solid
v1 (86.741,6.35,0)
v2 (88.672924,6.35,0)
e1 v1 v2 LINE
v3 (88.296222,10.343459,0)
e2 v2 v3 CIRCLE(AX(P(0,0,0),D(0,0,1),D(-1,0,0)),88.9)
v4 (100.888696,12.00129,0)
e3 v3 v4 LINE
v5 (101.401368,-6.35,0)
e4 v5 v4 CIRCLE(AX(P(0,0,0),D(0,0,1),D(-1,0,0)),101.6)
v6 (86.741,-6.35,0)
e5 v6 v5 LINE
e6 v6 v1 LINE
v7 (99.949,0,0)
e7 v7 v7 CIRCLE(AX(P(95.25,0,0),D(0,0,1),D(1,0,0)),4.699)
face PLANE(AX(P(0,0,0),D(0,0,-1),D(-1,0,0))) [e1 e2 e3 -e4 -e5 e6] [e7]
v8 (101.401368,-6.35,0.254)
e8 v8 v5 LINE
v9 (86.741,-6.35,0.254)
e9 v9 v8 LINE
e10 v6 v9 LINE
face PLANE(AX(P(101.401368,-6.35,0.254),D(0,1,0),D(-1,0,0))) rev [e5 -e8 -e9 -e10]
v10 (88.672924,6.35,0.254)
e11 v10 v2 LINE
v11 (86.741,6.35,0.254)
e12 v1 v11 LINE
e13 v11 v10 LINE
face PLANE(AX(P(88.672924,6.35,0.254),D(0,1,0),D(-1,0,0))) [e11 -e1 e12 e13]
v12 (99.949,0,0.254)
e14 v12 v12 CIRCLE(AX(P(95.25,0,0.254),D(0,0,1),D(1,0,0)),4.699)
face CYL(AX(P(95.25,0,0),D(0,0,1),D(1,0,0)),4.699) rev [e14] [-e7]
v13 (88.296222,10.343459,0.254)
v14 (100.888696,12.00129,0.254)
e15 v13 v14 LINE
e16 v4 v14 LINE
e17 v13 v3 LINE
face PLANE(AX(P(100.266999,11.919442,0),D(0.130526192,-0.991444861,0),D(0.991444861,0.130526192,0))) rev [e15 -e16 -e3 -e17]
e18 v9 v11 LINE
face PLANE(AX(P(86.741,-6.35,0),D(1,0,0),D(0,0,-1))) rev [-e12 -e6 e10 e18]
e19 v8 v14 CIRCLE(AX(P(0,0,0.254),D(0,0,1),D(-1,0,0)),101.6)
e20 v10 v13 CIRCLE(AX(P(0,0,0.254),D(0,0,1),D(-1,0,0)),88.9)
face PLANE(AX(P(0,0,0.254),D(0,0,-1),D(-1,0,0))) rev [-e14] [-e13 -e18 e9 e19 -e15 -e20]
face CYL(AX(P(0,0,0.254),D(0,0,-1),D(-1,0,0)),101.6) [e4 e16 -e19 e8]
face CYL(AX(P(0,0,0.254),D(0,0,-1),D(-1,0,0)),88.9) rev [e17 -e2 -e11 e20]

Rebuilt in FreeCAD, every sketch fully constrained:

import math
import FreeCAD as App
import Part
import Sketcher
from FreeCAD import Vector
Q = App.Units.Quantity


def add_polygon(sketch, points):
    """Adds a closed chain of lines whose ends are joined by coincident constraints."""
    first, n = sketch.GeometryCount, len(points)
    for a, b in zip(points, points[1:] + points[:1]):
        sketch.addGeometry(Part.LineSegment(App.Vector(*a, 0), App.Vector(*b, 0)), False)
    for i in range(n):
        sketch.addConstraint(Sketcher.Constraint("Coincident", first + i, 2, first + (i + 1) % n, 1))

doc = App.newDocument("Part")
body = doc.addObject("PartDesign::Body", "Body")

# Sketch on XY plane
sketch1 = body.newObject("Sketcher::SketchObject", "Sketch")
sketch1.AttachmentSupport = (doc.getObject("XY_Plane"), [""])
sketch1.MapMode = "FlatFace"
sketch1.addGeometry(Part.LineSegment(Vector(67.2, 76.2, 0), Vector(8.7, 17.7, 0)), False)
sketch1.addGeometry(Part.LineSegment(Vector(8.7, 17.7, 0), Vector(7.2, 14.1, 0)), False)
sketch1.addGeometry(Part.ArcOfCircle(Part.Circle(Vector(0, 0, 0), Vector(0, 0, 1), 15.9), math.radians(-18), math.radians(63)), False)
sketch1.addGeometry(Part.LineSegment(Vector(15.1, -4.9, 0), Vector(18.6, -6.3, 0)), False)
sketch1.addGeometry(Part.LineSegment(Vector(18.6, -6.3, 0), Vector(101.4, -6.3, 0)), False)
sketch1.addGeometry(Part.ArcOfCircle(Part.Circle(Vector(0, 0, 0), Vector(0, 0, 1), 101.6), math.radians(-4), math.radians(49)), False)
sketch1.addGeometry(Part.ArcOfCircle(Part.Circle(Vector(0, 0, 0), Vector(0, 0, 1), 88.9), math.radians(4), math.radians(41)), False)
sketch1.addGeometry(Part.LineSegment(Vector(88.7, 6.3, 0), Vector(27.9, 6.3, 0)), False)
sketch1.addGeometry(Part.ArcOfCircle(Part.Circle(Vector(0, 0, 0), Vector(0, 0, 1), 28.6), math.radians(12.84), math.radians(32.16)), False)
sketch1.addGeometry(Part.LineSegment(Vector(24.2, 15.2, 0), Vector(67.2, 58.2, 0)), False)
sketch1.addConstraint(Sketcher.Constraint("Coincident", 0, 2, 1, 1))
sketch1.addConstraint(Sketcher.Constraint("Coincident", 1, 2, 2, 2))
sketch1.addConstraint(Sketcher.Constraint("Coincident", 2, 1, 3, 1))
sketch1.addConstraint(Sketcher.Constraint("Coincident", 3, 2, 4, 1))
sketch1.addConstraint(Sketcher.Constraint("Coincident", 4, 2, 5, 1))
sketch1.addConstraint(Sketcher.Constraint("Coincident", 5, 2, 0, 1))
sketch1.addConstraint(Sketcher.Constraint("Coincident", 6, 1, 7, 1))
sketch1.addConstraint(Sketcher.Constraint("Coincident", 7, 2, 8, 1))
sketch1.addConstraint(Sketcher.Constraint("Coincident", 8, 2, 9, 1))
sketch1.addConstraint(Sketcher.Constraint("Coincident", 9, 2, 6, 2))
sketch1.addConstraint(Sketcher.Constraint("Horizontal", 4))
sketch1.addConstraint(Sketcher.Constraint("Horizontal", 7))
sketch1.addConstraint(Sketcher.Constraint("Coincident", 2, 3, -1, 1))
sketch1.addConstraint(Sketcher.Constraint("Coincident", 5, 3, -1, 1))
sketch1.addConstraint(Sketcher.Constraint("Coincident", 6, 3, -1, 1))
sketch1.addConstraint(Sketcher.Constraint("Coincident", 8, 3, -1, 1))
sketch1.addConstraint(Sketcher.Constraint("Perpendicular", 1, 3))
sketch1.addConstraint(Sketcher.Constraint("Parallel", 0, 9))
sketch1.addConstraint(Sketcher.Constraint("Equal", 1, 3))
sketch1.addConstraint(Sketcher.Constraint("Radius", 5, Q("4 in")))
sketch1.addConstraint(Sketcher.Constraint("Radius", 6, Q("3.5 in")))
sketch1.addConstraint(Sketcher.Constraint("Angle", 0, Q("-135 deg")))
sketch1.addConstraint(Sketcher.Constraint("Radius", 2, Q("0.625 in")))
sketch1.addConstraint(Sketcher.Constraint("Radius", 8, Q("1.125 in")))
sketch1.addConstraint(Sketcher.Constraint("Angle", 1, Q("-112.5 deg")))
sketch1.addConstraint(Sketcher.Constraint("DistanceY", 4, 2, 6, 1, Q("0.5 in")))
sketch1.addConstraint(Sketcher.Constraint("DistanceY", 3, 2, -1, 1, Q("0.25 in")))
sketch1.addConstraint(Sketcher.Constraint("DistanceY", 2, 1, -1, 1, Q("4.882301 mm")))
sketch1.addConstraint(Sketcher.Constraint("DistanceY", -1, 1, 9, 2, Q("58.211098 mm")))
sketch1.addConstraint(Sketcher.Constraint("DistanceX", 5, 2, 4, 2, Q("34.189901 mm")))
pad1 = body.newObject("PartDesign::Pad", "Pad")
pad1.Profile = sketch1
pad1.Length = Q("0.01 in")

# Sketch on XY plane
sketch2 = body.newObject("Sketcher::SketchObject", "Sketch001")
sketch2.AttachmentSupport = (doc.getObject("XY_Plane"), [""])
sketch2.MapMode = "FlatFace"
sketch2.AttachmentOffset = App.Placement(Vector(0, 0, 0.01 * 25.4), App.Rotation())
sketch2.addGeometry(Part.Circle(Vector(22.2, 0, 0), Vector(0, 0, 1), 4.7), False)
sketch2.addGeometry(Part.Circle(Vector(36.2, 0, 0), Vector(0, 0, 1), 4.7), False)
sketch2.addGeometry(Part.Circle(Vector(61.7, 0, 0), Vector(0, 0, 1), 4.7), False)
sketch2.addGeometry(Part.Circle(Vector(75.7, 0, 0), Vector(0, 0, 1), 4.7), False)
sketch2.addGeometry(Part.Circle(Vector(95.2, 0, 0), Vector(0, 0, 1), 4.7), False)
sketch2.addGeometry(Part.Circle(Vector(15.7, 15.7, 0), Vector(0, 0, 1), 4.7), False)
sketch2.addGeometry(Part.Circle(Vector(25.6, 25.6, 0), Vector(0, 0, 1), 4.7), False)
sketch2.addGeometry(Part.Circle(Vector(43.6, 43.6, 0), Vector(0, 0, 1), 4.7), False)
sketch2.addGeometry(Part.Circle(Vector(53.5, 53.5, 0), Vector(0, 0, 1), 4.7), False)
sketch2.addGeometry(Part.Circle(Vector(92, 24.7, 0), Vector(0, 0, 1), 4.7), False)
sketch2.addGeometry(Part.Circle(Vector(82.5, 47.6, 0), Vector(0, 0, 1), 4.7), False)
sketch2.addGeometry(Part.Circle(Vector(67.4, 67.4, 0), Vector(0, 0, 1), 4.7), False)
sketch2.addConstraint(Sketcher.Constraint("Equal", 0, 1))
sketch2.addConstraint(Sketcher.Constraint("Equal", 1, 2))
sketch2.addConstraint(Sketcher.Constraint("Equal", 2, 3))
sketch2.addConstraint(Sketcher.Constraint("Equal", 3, 4))
sketch2.addConstraint(Sketcher.Constraint("Equal", 4, 5))
sketch2.addConstraint(Sketcher.Constraint("Equal", 5, 6))
sketch2.addConstraint(Sketcher.Constraint("Equal", 6, 7))
sketch2.addConstraint(Sketcher.Constraint("Equal", 7, 8))
sketch2.addConstraint(Sketcher.Constraint("Equal", 8, 9))
sketch2.addConstraint(Sketcher.Constraint("Equal", 9, 10))
sketch2.addConstraint(Sketcher.Constraint("Equal", 10, 11))
sketch2.addConstraint(Sketcher.Constraint("PointOnObject", 0, 3, -1))
sketch2.addConstraint(Sketcher.Constraint("PointOnObject", 1, 3, -1))
sketch2.addConstraint(Sketcher.Constraint("PointOnObject", 2, 3, -1))
sketch2.addConstraint(Sketcher.Constraint("PointOnObject", 3, 3, -1))
sketch2.addConstraint(Sketcher.Constraint("PointOnObject", 4, 3, -1))
sketch2.addConstraint(Sketcher.Constraint("Diameter", 0, Q("0.37 in")))
sketch2.addConstraint(Sketcher.Constraint("DistanceX", -1, 1, 2, 3, Q("2.43 in")))
sketch2.addConstraint(Sketcher.Constraint("DistanceX", -1, 1, 3, 3, Q("2.98 in")))
sketch2.addConstraint(Sketcher.Constraint("DistanceX", -1, 1, 4, 3, Q("3.75 in")))
sketch2.addConstraint(Sketcher.Constraint("DistanceX", 0, 3, 1, 3, Q("0.55 in")))
sketch2.addConstraint(Sketcher.Constraint("DistanceX", -1, 1, 0, 3, Q("0.875 in")))
sketch2.addConstraint(Sketcher.Constraint("DistanceY", -1, 1, 10, 3, Q("1.875 in")))
sketch2.addConstraint(Sketcher.Constraint("DistanceX", 11, 3, 10, 3, Q("15.136999 mm")))
sketch2.addConstraint(Sketcher.Constraint("DistanceX", -1, 1, 5, 3, Q("15.715448 mm")))
sketch2.addConstraint(Sketcher.Constraint("DistanceY", -1, 1, 5, 3, Q("15.715448 mm")))
sketch2.addConstraint(Sketcher.Constraint("DistanceX", -1, 1, 6, 3, Q("25.59373 mm")))
sketch2.addConstraint(Sketcher.Constraint("DistanceY", -1, 1, 6, 3, Q("25.59373 mm")))
sketch2.addConstraint(Sketcher.Constraint("DistanceX", -1, 1, 10, 3, Q("82.48892 mm")))
sketch2.addConstraint(Sketcher.Constraint("DistanceY", -1, 1, 11, 3, Q("67.351921 mm")))
sketch2.addConstraint(Sketcher.Constraint("DistanceX", 7, 3, 8, 3, Q("9.878282 mm")))
sketch2.addConstraint(Sketcher.Constraint("DistanceY", 7, 3, 8, 3, Q("9.878282 mm")))
sketch2.addConstraint(Sketcher.Constraint("DistanceX", 5, 3, 8, 3, Q("37.806878 mm")))
sketch2.addConstraint(Sketcher.Constraint("DistanceY", 5, 3, 8, 3, Q("37.806878 mm")))
sketch2.addConstraint(Sketcher.Constraint("DistanceX", 8, 3, 9, 3, Q("38.482108 mm")))
sketch2.addConstraint(Sketcher.Constraint("DistanceY", 9, 3, 7, 3, Q("18.991531 mm")))
pocket1 = body.newObject("PartDesign::Pocket", "Pocket")
pocket1.Profile = sketch2
pocket1.Type = "ThroughAll"

# Sketch on XY plane
sketch3 = body.newObject("Sketcher::SketchObject", "Sketch002")
sketch3.AttachmentSupport = (doc.getObject("XY_Plane"), [""])
sketch3.MapMode = "FlatFace"
sketch3.AttachmentOffset = App.Placement(Vector(0, 0, 0.01 * 25.4), App.Rotation())
add_polygon(sketch3, [(17.1, 26), (15.3, 24.2), (15.7, 23.8), (17.5, 25.6)])  # lines 0-3
add_polygon(sketch3, [(45, 54), (43.2, 52.2), (43.6, 51.7), (45.4, 53.5)])  # lines 4-7
add_polygon(sketch3, [(27.9, -5.7), (27.9, -6.3), (30.5, -6.3), (30.5, -5.7)])  # lines 8-11
add_polygon(sketch3, [(67.4, -5.7), (67.4, -6.3), (70, -6.3), (70, -5.7)])  # lines 12-15
add_polygon(sketch3, [(31, 40), (29.2, 38.2), (29.7, 37.8), (31.5, 39.6)])  # lines 16-19
add_polygon(sketch3, [(56.8, 65.8), (55, 64), (55.5, 63.6), (57.3, 65.4)])  # lines 20-23
add_polygon(sketch3, [(47.7, -5.7), (47.7, -6.3), (50.2, -6.3), (50.2, -5.7)])  # lines 24-27
add_polygon(sketch3, [(84.2, -5.7), (84.2, -6.3), (86.7, -6.3), (86.7, -5.7)])  # lines 28-31
add_polygon(sketch3, [(99.9, 14.4), (100.3, 11.9), (101.5, 12.1), (101.2, 14.6)])  # lines 32-35
add_polygon(sketch3, [(93.8, 37.5), (94.9, 38), (94, 40.3), (92.8, 39.8)])  # lines 36-39
add_polygon(sketch3, [(79.3, 62.5), (80.9, 60.5), (81.9, 61.2), (80.3, 63.2)])  # lines 40-43
add_polygon(sketch3, [(13.6, 7), (14.6, 4.7), (15.7, 5.1), (14.8, 7.5)])  # lines 44-47
sketch3.addConstraint(Sketcher.Constraint("Vertical", 8))
sketch3.addConstraint(Sketcher.Constraint("Horizontal", 9))
sketch3.addConstraint(Sketcher.Constraint("Vertical", 10))
sketch3.addConstraint(Sketcher.Constraint("Horizontal", 11))
sketch3.addConstraint(Sketcher.Constraint("Vertical", 12))
sketch3.addConstraint(Sketcher.Constraint("Horizontal", 13))
sketch3.addConstraint(Sketcher.Constraint("Vertical", 14))
sketch3.addConstraint(Sketcher.Constraint("Horizontal", 15))
sketch3.addConstraint(Sketcher.Constraint("Vertical", 24))
sketch3.addConstraint(Sketcher.Constraint("Horizontal", 25))
sketch3.addConstraint(Sketcher.Constraint("Vertical", 26))
sketch3.addConstraint(Sketcher.Constraint("Horizontal", 27))
sketch3.addConstraint(Sketcher.Constraint("Vertical", 28))
sketch3.addConstraint(Sketcher.Constraint("Horizontal", 29))
sketch3.addConstraint(Sketcher.Constraint("Vertical", 30))
sketch3.addConstraint(Sketcher.Constraint("Horizontal", 31))
sketch3.addConstraint(Sketcher.Constraint("Perpendicular", 0, 1))
sketch3.addConstraint(Sketcher.Constraint("Perpendicular", 1, 2))
sketch3.addConstraint(Sketcher.Constraint("Perpendicular", 2, 3))
sketch3.addConstraint(Sketcher.Constraint("Perpendicular", 3, 4))
sketch3.addConstraint(Sketcher.Constraint("Perpendicular", 4, 5))
sketch3.addConstraint(Sketcher.Constraint("Perpendicular", 5, 6))
sketch3.addConstraint(Sketcher.Constraint("Perpendicular", 6, 7))
sketch3.addConstraint(Sketcher.Constraint("Perpendicular", 7, 16))
sketch3.addConstraint(Sketcher.Constraint("Perpendicular", 16, 17))
sketch3.addConstraint(Sketcher.Constraint("Perpendicular", 17, 18))
sketch3.addConstraint(Sketcher.Constraint("Perpendicular", 18, 19))
sketch3.addConstraint(Sketcher.Constraint("Perpendicular", 19, 20))
sketch3.addConstraint(Sketcher.Constraint("Perpendicular", 20, 21))
sketch3.addConstraint(Sketcher.Constraint("Perpendicular", 21, 22))
sketch3.addConstraint(Sketcher.Constraint("Perpendicular", 22, 23))
sketch3.addConstraint(Sketcher.Constraint("Perpendicular", 32, 33))
sketch3.addConstraint(Sketcher.Constraint("Perpendicular", 33, 34))
sketch3.addConstraint(Sketcher.Constraint("Perpendicular", 34, 35))
sketch3.addConstraint(Sketcher.Constraint("Perpendicular", 36, 37))
sketch3.addConstraint(Sketcher.Constraint("Perpendicular", 37, 38))
sketch3.addConstraint(Sketcher.Constraint("Perpendicular", 38, 39))
sketch3.addConstraint(Sketcher.Constraint("Perpendicular", 40, 41))
sketch3.addConstraint(Sketcher.Constraint("Perpendicular", 41, 42))
sketch3.addConstraint(Sketcher.Constraint("Perpendicular", 42, 43))
sketch3.addConstraint(Sketcher.Constraint("Parallel", 39, 44))
sketch3.addConstraint(Sketcher.Constraint("Perpendicular", 44, 45))
sketch3.addConstraint(Sketcher.Constraint("Perpendicular", 45, 46))
sketch3.addConstraint(Sketcher.Constraint("Perpendicular", 46, 47))
sketch3.addConstraint(Sketcher.Constraint("Horizontal", 9, 2, 12, 2))
sketch3.addConstraint(Sketcher.Constraint("Horizontal", 11, 2, 14, 2))
sketch3.addConstraint(Sketcher.Constraint("Horizontal", 13, 2, 24, 2))
sketch3.addConstraint(Sketcher.Constraint("Horizontal", 15, 2, 26, 2))
sketch3.addConstraint(Sketcher.Constraint("Horizontal", 25, 2, 28, 2))
sketch3.addConstraint(Sketcher.Constraint("Horizontal", 27, 2, 30, 2))
sketch3.addConstraint(Sketcher.Constraint("Equal", 11, 13))
sketch3.addConstraint(Sketcher.Constraint("Equal", 15, 25))
sketch3.addConstraint(Sketcher.Constraint("Equal", 27, 29))
sketch3.addConstraint(Sketcher.Constraint("Equal", 2, 4))
sketch3.addConstraint(Sketcher.Constraint("Equal", 3, 5))
sketch3.addConstraint(Sketcher.Constraint("Equal", 6, 16))
sketch3.addConstraint(Sketcher.Constraint("Equal", 7, 17))
sketch3.addConstraint(Sketcher.Constraint("Equal", 18, 20))
sketch3.addConstraint(Sketcher.Constraint("Equal", 19, 21))
sketch3.addConstraint(Sketcher.Constraint("Equal", 22, 32))
sketch3.addConstraint(Sketcher.Constraint("Equal", 35, 36))
sketch3.addConstraint(Sketcher.Constraint("Equal", 34, 37))
sketch3.addConstraint(Sketcher.Constraint("Equal", 39, 40))
sketch3.addConstraint(Sketcher.Constraint("Equal", 38, 41))
sketch3.addConstraint(Sketcher.Constraint("Equal", 42, 44))
sketch3.addConstraint(Sketcher.Constraint("Equal", 43, 45))
sketch3.addConstraint(Sketcher.Constraint("DistanceX", 9, 1, 9, 2, Q("0.1 in")))
sketch3.addConstraint(Sketcher.Constraint("Angle", 0, Q("-135 deg")))
sketch3.addConstraint(Sketcher.Constraint("Distance", 0, Q("0.1 in")))
sketch3.addConstraint(Sketcher.Constraint("DistanceX", -1, 1, 8, 2, Q("1.1 in")))
sketch3.addConstraint(Sketcher.Constraint("Angle", 32, Q("-82.5 deg")))
sketch3.addConstraint(Sketcher.Constraint("Angle", 36, Q("22.5 deg")))
sketch3.addConstraint(Sketcher.Constraint("Angle", 40, Q("-52.5 deg")))
sketch3.addConstraint(Sketcher.Constraint("Distance", 33, Q("0.05 in")))
sketch3.addConstraint(Sketcher.Constraint("DistanceY", 8, 2, 8, 1, Q("0.025 in")))
sketch3.addConstraint(Sketcher.Constraint("DistanceY", 8, 2, -1, 1, Q("0.25 in")))
sketch3.addConstraint(Sketcher.Constraint("DistanceX", 13, 2, 28, 2, Q("0.56 in")))
sketch3.addConstraint(Sketcher.Constraint("Distance", 1, Q("0.025 in")))
sketch3.addConstraint(Sketcher.Constraint("DistanceX", -1, 1, 12, 2, Q("2.655 in")))
sketch3.addConstraint(Sketcher.Constraint("DistanceX", -1, 1, 24, 2, Q("1.8775 in")))
sketch3.addConstraint(Sketcher.Constraint("DistanceX", -1, 1, 2, 2, Q("17.511499 mm")))
sketch3.addConstraint(Sketcher.Constraint("DistanceX", -1, 1, 32, 2, Q("100.266999 mm")))
sketch3.addConstraint(Sketcher.Constraint("DistanceX", 16, 2, 4, 2, Q("13.964298 mm")))
sketch3.addConstraint(Sketcher.Constraint("DistanceY", 16, 2, 4, 2, Q("13.964298 mm")))
sketch3.addConstraint(Sketcher.Constraint("DistanceX", 0, 2, 16, 2, Q("13.964298 mm")))
sketch3.addConstraint(Sketcher.Constraint("DistanceY", 0, 2, 16, 2, Q("13.964298 mm")))
sketch3.addConstraint(Sketcher.Constraint("DistanceY", 6, 2, 20, 2, Q("10.5069 mm")))
sketch3.addConstraint(Sketcher.Constraint("DistanceX", 7, 2, 21, 2, Q("10.5069 mm")))
sketch3.addConstraint(Sketcher.Constraint("DistanceY", 35, 2, 36, 2, Q("23.512602 mm")))
sketch3.addConstraint(Sketcher.Constraint("DistanceX", 36, 2, 33, 2, Q("6.587302 mm")))
sketch3.addConstraint(Sketcher.Constraint("DistanceY", 37, 2, 41, 2, Q("20.932198 mm")))
sketch3.addConstraint(Sketcher.Constraint("DistanceY", 41, 2, 22, 2, Q("4.147099 mm")))
sketch3.addConstraint(Sketcher.Constraint("DistanceY", 46, 2, 2, 2, Q("18.102299 mm")))
sketch3.addConstraint(Sketcher.Constraint("DistanceY", -1, 1, 0, 2, Q("24.246692 mm")))
sketch3.addConstraint(Sketcher.Constraint("DistanceX", -1, 1, 42, 2, Q("80.335352 mm")))
sketch3.addConstraint(Sketcher.Constraint("DistanceX", -1, 1, 45, 2, Q("15.739259 mm")))
pocket2 = body.newObject("PartDesign::Pocket", "Pocket001")
pocket2.Profile = sketch3
pocket2.Type = "ThroughAll"

# Sketch on XY plane
sketch4 = body.newObject("Sketcher::SketchObject", "Sketch003")
sketch4.AttachmentSupport = (doc.getObject("XY_Plane"), [""])
sketch4.MapMode = "FlatFace"
sketch4.AttachmentOffset = App.Placement(Vector(0, 0, 0.01 * 25.4), App.Rotation())
add_polygon(sketch4, [(-6, 90), (-6, -20), (115, -20), (115, 90)])  # lines 0-3
add_polygon(sketch4, [(103, -8), (87, -8), (87, 10), (103, 12)])  # lines 4-7
sketch4.addConstraint(Sketcher.Constraint("Vertical", 0))
sketch4.addConstraint(Sketcher.Constraint("Horizontal", 1))
sketch4.addConstraint(Sketcher.Constraint("Vertical", 2))
sketch4.addConstraint(Sketcher.Constraint("Horizontal", 3))
sketch4.addConstraint(Sketcher.Constraint("Horizontal", 4))
sketch4.addConstraint(Sketcher.Constraint("Vertical", 5))
sketch4.addConstraint(Sketcher.Constraint("Vertical", 7))
sketch4.addConstraint(Sketcher.Constraint("DistanceY", 4, 2, -1, 1, Q("0.3 in")))
sketch4.addConstraint(Sketcher.Constraint("Angle", 6, Q("7.5 deg")))
sketch4.addConstraint(Sketcher.Constraint("DistanceX", 4, 2, 4, 1, Q("0.635 in")))
sketch4.addConstraint(Sketcher.Constraint("DistanceX", -1, 1, 6, 2, Q("4.05 in")))
sketch4.addConstraint(Sketcher.Constraint("DistanceX", 1, 1, 1, 2, Q("121.447 mm")))
sketch4.addConstraint(Sketcher.Constraint("DistanceY", 0, 2, 0, 1, Q("109.618 mm")))
sketch4.addConstraint(Sketcher.Constraint("DistanceY", 5, 1, 5, 2, Q("17.758711 mm")))
sketch4.addConstraint(Sketcher.Constraint("DistanceX", 0, 2, -1, 1, Q("6.309 mm")))
sketch4.addConstraint(Sketcher.Constraint("DistanceY", 0, 2, -1, 1, Q("19.888 mm")))
pocket3 = body.newObject("PartDesign::Pocket", "Pocket002")
pocket3.Profile = sketch4
pocket3.Type = "ThroughAll"

doc.recompute()
